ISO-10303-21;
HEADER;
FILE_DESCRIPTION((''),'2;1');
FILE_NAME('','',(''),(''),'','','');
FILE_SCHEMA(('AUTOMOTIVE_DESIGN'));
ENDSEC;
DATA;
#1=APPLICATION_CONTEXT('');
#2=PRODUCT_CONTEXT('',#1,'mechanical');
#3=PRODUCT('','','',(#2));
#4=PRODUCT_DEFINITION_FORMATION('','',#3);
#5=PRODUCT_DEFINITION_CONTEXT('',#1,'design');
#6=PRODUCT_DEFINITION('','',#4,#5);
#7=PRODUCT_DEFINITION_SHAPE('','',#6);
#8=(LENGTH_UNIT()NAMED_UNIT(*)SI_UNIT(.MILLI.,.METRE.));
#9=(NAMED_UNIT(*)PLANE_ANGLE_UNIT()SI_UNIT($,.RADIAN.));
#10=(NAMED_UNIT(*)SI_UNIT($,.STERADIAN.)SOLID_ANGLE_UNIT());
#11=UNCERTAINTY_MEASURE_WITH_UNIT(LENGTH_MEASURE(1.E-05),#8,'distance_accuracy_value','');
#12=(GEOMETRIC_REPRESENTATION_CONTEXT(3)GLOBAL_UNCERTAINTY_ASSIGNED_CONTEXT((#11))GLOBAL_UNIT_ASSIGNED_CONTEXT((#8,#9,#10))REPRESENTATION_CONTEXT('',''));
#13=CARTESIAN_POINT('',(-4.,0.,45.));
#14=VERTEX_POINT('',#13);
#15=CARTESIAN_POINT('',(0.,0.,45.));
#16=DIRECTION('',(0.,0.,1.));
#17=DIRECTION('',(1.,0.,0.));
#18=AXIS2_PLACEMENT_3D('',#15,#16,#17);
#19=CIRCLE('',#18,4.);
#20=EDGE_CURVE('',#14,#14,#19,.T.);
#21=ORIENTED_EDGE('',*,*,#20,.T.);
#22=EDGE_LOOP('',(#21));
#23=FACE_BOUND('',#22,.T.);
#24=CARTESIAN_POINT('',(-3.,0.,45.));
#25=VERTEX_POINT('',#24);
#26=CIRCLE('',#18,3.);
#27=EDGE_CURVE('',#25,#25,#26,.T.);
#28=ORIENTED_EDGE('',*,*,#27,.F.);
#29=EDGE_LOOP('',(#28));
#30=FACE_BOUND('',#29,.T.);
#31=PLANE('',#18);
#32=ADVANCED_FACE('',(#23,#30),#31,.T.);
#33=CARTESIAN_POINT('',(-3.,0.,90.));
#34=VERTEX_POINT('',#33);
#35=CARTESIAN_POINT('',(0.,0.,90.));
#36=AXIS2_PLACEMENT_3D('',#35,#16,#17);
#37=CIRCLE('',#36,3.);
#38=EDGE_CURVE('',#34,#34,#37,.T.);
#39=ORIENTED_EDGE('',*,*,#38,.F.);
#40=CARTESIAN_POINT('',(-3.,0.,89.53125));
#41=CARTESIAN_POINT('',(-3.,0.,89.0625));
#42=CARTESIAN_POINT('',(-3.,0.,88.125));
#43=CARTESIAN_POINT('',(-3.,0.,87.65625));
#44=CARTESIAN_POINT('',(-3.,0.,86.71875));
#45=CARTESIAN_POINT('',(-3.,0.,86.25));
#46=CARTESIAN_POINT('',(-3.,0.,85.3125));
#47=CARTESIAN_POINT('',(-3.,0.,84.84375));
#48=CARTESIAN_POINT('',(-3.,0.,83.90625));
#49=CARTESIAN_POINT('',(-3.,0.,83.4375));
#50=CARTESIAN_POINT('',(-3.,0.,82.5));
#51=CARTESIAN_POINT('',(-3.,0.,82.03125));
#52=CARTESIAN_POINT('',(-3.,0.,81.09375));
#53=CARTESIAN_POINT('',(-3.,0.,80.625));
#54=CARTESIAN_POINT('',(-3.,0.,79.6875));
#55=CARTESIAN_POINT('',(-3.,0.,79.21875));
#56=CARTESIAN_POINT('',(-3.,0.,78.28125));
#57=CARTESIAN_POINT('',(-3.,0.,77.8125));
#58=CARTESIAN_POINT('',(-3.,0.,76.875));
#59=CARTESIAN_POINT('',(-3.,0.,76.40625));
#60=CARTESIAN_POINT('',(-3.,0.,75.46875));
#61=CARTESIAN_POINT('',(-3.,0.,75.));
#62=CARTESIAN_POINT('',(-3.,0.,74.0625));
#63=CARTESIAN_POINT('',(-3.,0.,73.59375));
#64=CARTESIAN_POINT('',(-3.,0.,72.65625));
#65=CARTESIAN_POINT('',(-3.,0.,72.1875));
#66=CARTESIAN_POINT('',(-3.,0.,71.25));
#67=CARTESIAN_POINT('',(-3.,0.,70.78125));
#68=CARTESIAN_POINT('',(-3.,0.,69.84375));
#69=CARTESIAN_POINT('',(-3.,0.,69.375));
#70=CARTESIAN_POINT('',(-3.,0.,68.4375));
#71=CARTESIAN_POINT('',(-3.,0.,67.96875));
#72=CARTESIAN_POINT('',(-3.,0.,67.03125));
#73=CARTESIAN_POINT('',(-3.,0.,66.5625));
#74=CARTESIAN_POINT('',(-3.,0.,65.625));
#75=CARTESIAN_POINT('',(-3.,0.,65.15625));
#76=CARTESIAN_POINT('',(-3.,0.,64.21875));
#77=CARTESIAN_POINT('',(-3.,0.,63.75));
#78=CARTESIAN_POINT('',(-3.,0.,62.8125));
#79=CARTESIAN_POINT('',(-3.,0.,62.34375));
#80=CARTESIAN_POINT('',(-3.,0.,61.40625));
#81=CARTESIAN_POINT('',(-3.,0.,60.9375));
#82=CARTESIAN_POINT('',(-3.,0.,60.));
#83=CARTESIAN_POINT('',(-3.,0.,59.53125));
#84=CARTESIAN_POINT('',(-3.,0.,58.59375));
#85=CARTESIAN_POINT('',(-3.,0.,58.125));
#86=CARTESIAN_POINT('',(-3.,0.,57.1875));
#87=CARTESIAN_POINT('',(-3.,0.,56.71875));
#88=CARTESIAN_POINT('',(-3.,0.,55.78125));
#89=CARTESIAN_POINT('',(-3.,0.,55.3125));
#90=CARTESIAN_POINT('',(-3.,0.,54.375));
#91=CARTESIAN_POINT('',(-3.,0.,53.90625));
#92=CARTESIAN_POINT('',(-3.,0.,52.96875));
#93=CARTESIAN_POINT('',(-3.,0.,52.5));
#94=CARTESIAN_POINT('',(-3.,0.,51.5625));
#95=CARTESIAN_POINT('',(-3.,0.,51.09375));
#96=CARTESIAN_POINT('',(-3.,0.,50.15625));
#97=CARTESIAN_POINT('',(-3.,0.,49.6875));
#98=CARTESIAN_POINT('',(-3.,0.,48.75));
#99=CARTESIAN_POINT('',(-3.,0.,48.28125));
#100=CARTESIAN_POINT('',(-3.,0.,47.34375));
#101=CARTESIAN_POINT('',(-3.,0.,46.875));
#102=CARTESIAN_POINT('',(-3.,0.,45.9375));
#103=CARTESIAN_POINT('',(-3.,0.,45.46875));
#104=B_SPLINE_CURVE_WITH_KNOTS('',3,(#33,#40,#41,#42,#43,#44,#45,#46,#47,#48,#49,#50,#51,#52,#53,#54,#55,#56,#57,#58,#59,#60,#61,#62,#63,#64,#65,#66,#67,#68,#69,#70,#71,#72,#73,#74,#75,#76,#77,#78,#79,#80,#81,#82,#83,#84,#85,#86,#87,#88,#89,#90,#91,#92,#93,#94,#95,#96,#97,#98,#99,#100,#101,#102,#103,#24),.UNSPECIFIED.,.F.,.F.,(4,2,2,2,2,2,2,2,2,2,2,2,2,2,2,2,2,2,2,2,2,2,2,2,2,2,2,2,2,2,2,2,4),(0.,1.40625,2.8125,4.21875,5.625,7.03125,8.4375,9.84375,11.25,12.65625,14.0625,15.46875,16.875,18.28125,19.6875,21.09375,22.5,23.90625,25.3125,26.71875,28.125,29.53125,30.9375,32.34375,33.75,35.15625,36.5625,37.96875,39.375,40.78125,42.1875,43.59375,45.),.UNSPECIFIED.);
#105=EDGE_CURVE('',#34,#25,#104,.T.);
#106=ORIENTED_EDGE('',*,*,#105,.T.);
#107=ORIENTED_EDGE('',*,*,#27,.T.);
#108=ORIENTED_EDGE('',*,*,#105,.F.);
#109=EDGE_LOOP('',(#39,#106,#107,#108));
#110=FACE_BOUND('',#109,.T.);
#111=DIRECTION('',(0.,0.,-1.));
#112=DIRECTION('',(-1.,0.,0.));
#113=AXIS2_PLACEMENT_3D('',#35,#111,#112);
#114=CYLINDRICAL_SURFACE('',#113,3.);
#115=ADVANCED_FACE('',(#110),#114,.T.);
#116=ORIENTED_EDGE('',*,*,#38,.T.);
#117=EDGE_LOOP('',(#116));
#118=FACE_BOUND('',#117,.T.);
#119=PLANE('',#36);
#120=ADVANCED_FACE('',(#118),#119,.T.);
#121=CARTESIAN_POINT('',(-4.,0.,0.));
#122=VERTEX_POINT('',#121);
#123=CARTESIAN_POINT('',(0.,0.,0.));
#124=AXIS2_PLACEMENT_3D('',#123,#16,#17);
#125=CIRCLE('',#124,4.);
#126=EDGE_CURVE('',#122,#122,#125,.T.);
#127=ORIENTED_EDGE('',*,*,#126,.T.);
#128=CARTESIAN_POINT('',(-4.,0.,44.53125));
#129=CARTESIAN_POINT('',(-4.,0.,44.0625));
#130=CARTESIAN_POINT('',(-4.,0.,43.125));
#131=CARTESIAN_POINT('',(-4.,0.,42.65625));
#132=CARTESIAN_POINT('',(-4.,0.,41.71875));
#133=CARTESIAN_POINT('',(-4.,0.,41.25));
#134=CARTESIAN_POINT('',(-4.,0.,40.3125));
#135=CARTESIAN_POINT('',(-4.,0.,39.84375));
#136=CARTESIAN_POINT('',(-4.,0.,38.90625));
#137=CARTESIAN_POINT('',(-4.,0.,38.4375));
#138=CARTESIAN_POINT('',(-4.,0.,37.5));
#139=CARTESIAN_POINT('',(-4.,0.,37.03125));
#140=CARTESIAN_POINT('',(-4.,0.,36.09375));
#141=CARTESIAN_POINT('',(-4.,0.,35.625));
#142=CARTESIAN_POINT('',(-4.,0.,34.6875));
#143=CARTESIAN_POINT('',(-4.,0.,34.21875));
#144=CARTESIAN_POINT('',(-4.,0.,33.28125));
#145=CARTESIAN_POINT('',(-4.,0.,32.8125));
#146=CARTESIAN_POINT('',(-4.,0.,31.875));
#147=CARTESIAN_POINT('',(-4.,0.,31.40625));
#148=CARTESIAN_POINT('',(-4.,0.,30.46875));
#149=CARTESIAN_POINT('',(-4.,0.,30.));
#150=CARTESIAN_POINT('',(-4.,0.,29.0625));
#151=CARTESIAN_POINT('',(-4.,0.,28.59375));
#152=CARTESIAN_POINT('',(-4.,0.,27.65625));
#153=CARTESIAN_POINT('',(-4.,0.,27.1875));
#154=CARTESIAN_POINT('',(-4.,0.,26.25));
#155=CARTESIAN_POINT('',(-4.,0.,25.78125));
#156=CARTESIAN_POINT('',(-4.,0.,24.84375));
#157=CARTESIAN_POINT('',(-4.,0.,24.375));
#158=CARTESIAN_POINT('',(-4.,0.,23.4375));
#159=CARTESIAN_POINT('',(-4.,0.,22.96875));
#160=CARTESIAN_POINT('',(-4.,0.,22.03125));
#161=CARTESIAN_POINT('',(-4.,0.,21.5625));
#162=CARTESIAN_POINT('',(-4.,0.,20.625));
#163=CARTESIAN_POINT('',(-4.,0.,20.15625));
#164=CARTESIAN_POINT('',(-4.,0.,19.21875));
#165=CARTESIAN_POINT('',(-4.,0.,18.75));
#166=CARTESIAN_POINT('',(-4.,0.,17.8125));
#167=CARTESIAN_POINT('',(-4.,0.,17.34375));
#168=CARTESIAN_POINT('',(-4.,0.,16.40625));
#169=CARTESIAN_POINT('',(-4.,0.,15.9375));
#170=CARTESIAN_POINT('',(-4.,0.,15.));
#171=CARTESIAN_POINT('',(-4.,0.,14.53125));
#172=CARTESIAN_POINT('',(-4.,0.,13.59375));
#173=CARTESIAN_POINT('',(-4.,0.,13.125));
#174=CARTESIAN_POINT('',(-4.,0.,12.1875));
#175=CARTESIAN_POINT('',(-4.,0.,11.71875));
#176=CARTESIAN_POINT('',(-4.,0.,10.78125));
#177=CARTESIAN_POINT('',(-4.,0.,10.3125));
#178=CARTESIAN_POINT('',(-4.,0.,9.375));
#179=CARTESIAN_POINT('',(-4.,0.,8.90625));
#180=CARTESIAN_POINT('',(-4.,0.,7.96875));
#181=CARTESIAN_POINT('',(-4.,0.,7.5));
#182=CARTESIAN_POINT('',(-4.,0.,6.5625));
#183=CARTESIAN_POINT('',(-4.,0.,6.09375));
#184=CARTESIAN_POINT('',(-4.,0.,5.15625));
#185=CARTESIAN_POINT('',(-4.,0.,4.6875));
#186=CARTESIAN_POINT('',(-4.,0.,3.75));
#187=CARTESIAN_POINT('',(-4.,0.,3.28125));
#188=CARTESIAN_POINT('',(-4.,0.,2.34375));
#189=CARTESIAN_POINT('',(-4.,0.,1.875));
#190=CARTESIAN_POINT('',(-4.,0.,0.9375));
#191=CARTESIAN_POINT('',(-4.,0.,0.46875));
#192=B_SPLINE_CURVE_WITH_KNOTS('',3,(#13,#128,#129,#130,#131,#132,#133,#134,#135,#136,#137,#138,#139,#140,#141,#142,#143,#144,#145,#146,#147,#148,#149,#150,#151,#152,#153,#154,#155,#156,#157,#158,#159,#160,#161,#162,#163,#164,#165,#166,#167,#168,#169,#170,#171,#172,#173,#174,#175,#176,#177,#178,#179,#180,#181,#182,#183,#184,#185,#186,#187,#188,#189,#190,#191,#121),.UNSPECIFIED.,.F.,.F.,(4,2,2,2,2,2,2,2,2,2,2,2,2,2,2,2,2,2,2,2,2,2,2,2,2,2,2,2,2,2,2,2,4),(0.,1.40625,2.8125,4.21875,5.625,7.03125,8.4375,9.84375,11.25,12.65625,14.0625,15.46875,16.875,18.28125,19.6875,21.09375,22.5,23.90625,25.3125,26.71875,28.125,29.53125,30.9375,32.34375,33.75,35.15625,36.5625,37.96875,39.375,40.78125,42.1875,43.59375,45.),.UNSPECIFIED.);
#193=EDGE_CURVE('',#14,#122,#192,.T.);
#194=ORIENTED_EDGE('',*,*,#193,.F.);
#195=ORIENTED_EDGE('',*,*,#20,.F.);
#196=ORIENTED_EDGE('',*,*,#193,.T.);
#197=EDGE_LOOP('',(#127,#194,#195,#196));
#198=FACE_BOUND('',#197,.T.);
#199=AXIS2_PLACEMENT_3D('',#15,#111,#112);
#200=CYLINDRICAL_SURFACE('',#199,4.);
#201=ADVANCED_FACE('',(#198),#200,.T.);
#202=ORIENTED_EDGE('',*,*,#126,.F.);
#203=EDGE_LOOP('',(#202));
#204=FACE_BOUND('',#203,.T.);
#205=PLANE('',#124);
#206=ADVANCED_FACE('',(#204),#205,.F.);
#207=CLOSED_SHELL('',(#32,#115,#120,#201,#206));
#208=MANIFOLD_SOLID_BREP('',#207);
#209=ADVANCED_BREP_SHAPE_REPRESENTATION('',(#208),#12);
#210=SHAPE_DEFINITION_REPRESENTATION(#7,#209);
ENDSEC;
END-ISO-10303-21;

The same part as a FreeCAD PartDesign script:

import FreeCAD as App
import Part
import Sketcher
from FreeCAD import Vector

doc = App.newDocument("Part")
body = doc.addObject("PartDesign::Body", "Body")

# Sketch on XY plane
sketch1 = body.newObject("Sketcher::SketchObject", "Sketch")
sketch1.AttachmentSupport = (doc.getObject("XY_Plane"), [""])
sketch1.MapMode = "FlatFace"
sketch1.addGeometry(Part.Circle(Vector(0, 0, 0), Vector(0, 0, 1), 4), False)
sketch1.addConstraint(Sketcher.Constraint("Coincident", 0, 3, -1, 1))
sketch1.addConstraint(Sketcher.Constraint("Diameter", 0, 8.0))
pad1 = body.newObject("PartDesign::Pad", "Pad")
pad1.Profile = sketch1
pad1.Length = 45

# Sketch on XY plane
sketch2 = body.newObject("Sketcher::SketchObject", "Sketch001")
sketch2.AttachmentSupport = (doc.getObject("XY_Plane"), [""])
sketch2.MapMode = "FlatFace"
sketch2.AttachmentOffset = App.Placement(Vector(0, 0, 45), App.Rotation())
sketch2.addGeometry(Part.Circle(Vector(0, 0, 0), Vector(0, 0, 1), 3), False)
sketch2.addConstraint(Sketcher.Constraint("Coincident", 0, 3, -1, 1))
sketch2.addConstraint(Sketcher.Constraint("Diameter", 0, 6.0))
pad2 = body.newObject("PartDesign::Pad", "Pad001")
pad2.Profile = sketch2
pad2.Length = 45

doc.recompute()
